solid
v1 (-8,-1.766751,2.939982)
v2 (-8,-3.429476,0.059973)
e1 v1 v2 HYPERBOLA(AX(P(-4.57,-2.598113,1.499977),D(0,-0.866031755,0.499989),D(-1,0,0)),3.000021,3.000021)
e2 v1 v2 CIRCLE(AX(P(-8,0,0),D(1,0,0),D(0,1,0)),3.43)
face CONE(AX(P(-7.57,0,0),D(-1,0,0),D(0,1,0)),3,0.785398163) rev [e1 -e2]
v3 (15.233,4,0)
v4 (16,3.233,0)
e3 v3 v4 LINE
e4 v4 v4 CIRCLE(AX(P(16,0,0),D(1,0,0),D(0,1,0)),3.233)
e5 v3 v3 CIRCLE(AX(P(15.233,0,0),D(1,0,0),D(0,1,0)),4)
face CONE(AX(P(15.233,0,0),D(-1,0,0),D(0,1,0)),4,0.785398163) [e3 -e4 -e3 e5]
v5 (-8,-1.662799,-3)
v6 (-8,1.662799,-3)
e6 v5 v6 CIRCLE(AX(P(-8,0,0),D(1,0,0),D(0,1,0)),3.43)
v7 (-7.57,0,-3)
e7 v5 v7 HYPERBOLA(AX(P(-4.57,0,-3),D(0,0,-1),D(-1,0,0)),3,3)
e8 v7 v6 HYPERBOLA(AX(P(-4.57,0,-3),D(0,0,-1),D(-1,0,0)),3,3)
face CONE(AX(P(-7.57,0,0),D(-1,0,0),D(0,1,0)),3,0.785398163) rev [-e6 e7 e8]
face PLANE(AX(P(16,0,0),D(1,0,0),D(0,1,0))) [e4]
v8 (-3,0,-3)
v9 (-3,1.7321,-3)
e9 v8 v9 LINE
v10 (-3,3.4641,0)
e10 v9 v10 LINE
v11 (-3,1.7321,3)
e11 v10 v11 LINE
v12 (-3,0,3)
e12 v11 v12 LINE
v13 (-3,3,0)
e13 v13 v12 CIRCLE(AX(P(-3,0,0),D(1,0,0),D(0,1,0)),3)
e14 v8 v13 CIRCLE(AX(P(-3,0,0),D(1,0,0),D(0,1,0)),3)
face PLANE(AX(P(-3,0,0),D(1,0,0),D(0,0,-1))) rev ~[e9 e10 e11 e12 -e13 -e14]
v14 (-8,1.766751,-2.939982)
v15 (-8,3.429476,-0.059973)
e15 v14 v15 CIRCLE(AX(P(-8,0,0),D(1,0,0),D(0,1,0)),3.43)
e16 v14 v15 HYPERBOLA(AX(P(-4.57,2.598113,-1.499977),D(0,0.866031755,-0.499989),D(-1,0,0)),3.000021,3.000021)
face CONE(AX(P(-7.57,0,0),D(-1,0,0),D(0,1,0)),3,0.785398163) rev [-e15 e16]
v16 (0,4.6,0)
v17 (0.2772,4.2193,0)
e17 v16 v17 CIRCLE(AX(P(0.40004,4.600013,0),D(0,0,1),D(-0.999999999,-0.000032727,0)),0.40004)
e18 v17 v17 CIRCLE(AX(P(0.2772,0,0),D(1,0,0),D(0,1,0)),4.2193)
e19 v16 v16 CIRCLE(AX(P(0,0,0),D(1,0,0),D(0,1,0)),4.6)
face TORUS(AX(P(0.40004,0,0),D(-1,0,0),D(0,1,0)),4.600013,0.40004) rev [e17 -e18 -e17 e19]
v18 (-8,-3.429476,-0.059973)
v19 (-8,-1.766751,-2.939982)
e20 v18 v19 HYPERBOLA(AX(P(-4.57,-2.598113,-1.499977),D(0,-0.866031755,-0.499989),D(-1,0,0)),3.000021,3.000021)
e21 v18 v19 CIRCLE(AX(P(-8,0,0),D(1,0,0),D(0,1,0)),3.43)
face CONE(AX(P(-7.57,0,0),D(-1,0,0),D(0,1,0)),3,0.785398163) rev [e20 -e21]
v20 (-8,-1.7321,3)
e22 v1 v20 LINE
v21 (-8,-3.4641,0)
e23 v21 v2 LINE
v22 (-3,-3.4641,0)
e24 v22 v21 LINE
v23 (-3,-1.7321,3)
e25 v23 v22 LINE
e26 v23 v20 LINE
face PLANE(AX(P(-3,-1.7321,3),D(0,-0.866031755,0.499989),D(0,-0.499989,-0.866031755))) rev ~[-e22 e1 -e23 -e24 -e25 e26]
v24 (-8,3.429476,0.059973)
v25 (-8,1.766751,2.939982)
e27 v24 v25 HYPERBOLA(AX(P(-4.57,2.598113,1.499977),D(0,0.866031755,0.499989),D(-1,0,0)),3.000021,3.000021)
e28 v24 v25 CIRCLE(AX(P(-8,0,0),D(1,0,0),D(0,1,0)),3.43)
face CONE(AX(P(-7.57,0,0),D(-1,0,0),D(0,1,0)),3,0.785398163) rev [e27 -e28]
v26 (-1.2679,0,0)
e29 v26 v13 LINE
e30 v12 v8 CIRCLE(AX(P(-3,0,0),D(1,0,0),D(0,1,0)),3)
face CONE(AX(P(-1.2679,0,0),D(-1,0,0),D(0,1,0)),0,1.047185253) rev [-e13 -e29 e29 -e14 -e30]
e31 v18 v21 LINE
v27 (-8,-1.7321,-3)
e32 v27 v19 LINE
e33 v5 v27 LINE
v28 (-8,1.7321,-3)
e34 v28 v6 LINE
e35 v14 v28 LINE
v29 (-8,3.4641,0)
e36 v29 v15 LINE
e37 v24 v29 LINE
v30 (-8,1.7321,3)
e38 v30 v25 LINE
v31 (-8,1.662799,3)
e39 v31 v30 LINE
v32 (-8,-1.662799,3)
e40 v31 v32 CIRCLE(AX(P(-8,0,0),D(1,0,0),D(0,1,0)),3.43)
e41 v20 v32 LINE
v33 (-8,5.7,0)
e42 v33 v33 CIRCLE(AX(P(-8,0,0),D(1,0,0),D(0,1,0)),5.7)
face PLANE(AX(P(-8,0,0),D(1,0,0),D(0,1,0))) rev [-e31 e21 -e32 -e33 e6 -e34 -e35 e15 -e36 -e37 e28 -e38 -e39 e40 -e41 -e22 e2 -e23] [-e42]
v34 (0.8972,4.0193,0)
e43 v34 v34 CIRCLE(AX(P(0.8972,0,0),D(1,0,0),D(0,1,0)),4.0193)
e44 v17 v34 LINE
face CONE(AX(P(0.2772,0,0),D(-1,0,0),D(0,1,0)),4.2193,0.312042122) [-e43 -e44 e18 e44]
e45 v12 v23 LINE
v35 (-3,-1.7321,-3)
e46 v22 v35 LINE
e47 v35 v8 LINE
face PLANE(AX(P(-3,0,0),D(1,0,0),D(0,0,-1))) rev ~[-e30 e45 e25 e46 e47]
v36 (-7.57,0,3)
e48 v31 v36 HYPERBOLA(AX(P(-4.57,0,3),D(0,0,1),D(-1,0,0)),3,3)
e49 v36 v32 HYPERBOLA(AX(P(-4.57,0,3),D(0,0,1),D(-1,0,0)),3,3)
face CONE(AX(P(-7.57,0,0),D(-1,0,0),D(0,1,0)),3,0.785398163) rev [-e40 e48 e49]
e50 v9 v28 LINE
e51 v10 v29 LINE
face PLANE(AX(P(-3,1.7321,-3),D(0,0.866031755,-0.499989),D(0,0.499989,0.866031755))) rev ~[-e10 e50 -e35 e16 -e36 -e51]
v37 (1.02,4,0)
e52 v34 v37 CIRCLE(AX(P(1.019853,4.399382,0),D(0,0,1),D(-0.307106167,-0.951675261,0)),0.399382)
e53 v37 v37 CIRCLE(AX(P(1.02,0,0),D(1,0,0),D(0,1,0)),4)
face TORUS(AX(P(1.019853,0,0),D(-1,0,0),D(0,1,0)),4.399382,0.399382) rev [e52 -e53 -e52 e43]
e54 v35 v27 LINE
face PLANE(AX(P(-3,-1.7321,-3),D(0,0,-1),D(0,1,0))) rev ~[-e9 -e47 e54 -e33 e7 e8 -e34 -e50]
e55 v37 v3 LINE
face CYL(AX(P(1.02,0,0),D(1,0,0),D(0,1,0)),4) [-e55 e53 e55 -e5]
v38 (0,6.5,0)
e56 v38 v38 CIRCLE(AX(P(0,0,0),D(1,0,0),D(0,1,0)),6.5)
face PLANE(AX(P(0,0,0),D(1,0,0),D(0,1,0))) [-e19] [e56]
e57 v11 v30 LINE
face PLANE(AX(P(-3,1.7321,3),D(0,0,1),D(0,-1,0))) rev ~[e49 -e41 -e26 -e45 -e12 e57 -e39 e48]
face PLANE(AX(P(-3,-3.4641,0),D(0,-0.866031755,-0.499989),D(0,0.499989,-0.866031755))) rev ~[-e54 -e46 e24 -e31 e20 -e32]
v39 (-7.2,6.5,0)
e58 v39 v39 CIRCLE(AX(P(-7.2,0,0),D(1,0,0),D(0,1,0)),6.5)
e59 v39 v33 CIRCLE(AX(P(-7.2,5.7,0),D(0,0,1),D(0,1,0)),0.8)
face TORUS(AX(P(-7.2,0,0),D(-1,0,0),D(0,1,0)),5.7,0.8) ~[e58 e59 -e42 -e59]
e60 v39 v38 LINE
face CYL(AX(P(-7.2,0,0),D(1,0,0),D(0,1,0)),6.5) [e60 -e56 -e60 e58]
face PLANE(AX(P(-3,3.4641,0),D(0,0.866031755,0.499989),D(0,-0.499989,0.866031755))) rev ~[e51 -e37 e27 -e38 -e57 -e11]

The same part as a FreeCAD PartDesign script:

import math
import FreeCAD as App
import Part
import Sketcher
from FreeCAD import Vector
Q = App.Units.Quantity

doc = App.newDocument("Part")
params = doc.addObject("Spreadsheet::Sheet", "Params")
for row, (alias, value) in enumerate([
    ("sketch1_radius", "0.4 mm"),
    ("sketch1_radius2", "0.8 mm"),
    ("sketch1_width", "7.2 mm"),
    ("sketch1_height", "1.9 mm"),
    ("sketch1_width2", "4.57 mm"),
    ("revolution_angle", "360 deg"),
    ("pocket1_length", "8 mm"),
], start=1):
    params.set(f"A{row}", alias)
    params.set(f"B{row}", "=" + value)
    params.setAlias(f"B{row}", alias)

body = doc.addObject("PartDesign::Body", "Body")

# Sketch on XY plane
sketch1 = body.newObject("Sketcher::SketchObject", "Sketch")
sketch1.AttachmentSupport = (doc.getObject("XY_Plane"), [""])
sketch1.MapMode = "FlatFace"
sketch1.addGeometry([
    Part.LineSegment(Vector(-1.27, 0, 0), Vector(16, 0, 0)),  # 0
    Part.LineSegment(Vector(16, 0, 0), Vector(16, 3.23, 0)),  # 1
    Part.LineSegment(Vector(16, 3.23, 0), Vector(15.23, 4, 0)),  # 2
    Part.LineSegment(Vector(15.23, 4, 0), Vector(1.02, 4, 0)),  # 3
    Part.ArcOfCircle(Part.Circle(Vector(1.02, 4.4, 0), Vector(0, 0, 1), 0.4), math.radians(-107.88), math.radians(-90)),  # 4
    Part.LineSegment(Vector(0.9, 4.02, 0), Vector(0.28, 4.22, 0)),  # 5
    Part.ArcOfCircle(Part.Circle(Vector(0.4, 4.6, 0), Vector(0, 0, 1), 0.4), math.radians(180), math.radians(252)),  # 6
    Part.LineSegment(Vector(0, 4.6, 0), Vector(0, 6.5, 0)),  # 7
    Part.LineSegment(Vector(0, 6.5, 0), Vector(-7.2, 6.5, 0)),  # 8
    Part.ArcOfCircle(Part.Circle(Vector(-7.2, 5.7, 0), Vector(0, 0, 1), 0.8), math.radians(90), math.radians(180)),  # 9
    Part.LineSegment(Vector(-8, 5.7, 0), Vector(-8, 3.43, 0)),  # 10
    Part.LineSegment(Vector(-8, 3.43, 0), Vector(-7.57, 3, 0)),  # 11
    Part.LineSegment(Vector(-7.57, 3, 0), Vector(-3, 3, 0)),  # 12
    Part.LineSegment(Vector(-3, 3, 0), Vector(-1.27, 0, 0)),  # 13
], False)
sketch1.addConstraint([
    Sketcher.Constraint("Coincident", 0, 2, 1, 1),
    Sketcher.Constraint("Coincident", 1, 2, 2, 1),
    Sketcher.Constraint("Coincident", 2, 2, 3, 1),
    Sketcher.Constraint("Tangent", 3, 2, 4, 2),
    Sketcher.Constraint("Tangent", 4, 1, 5, 1),
    Sketcher.Constraint("Tangent", 5, 2, 6, 2),
    Sketcher.Constraint("Tangent", 6, 1, 7, 1),
    Sketcher.Constraint("Coincident", 7, 2, 8, 1),
    Sketcher.Constraint("Tangent", 8, 2, 9, 1),
    Sketcher.Constraint("Tangent", 9, 2, 10, 1),
    Sketcher.Constraint("Coincident", 10, 2, 11, 1),
    Sketcher.Constraint("Coincident", 11, 2, 12, 1),
    Sketcher.Constraint("Coincident", 12, 2, 13, 1),
    Sketcher.Constraint("Coincident", 13, 2, 0, 1),
    Sketcher.Constraint("Horizontal", 0),
    Sketcher.Constraint("Vertical", 1),
    Sketcher.Constraint("Horizontal", 3),
    Sketcher.Constraint("Vertical", 7),
    Sketcher.Constraint("Horizontal", 8),
    Sketcher.Constraint("Vertical", 10),
    Sketcher.Constraint("Horizontal", 12),
    Sketcher.Constraint("Equal", 4, 6),
    Sketcher.Constraint("PointOnObject", 0, 2, -1),
    Sketcher.Constraint("PointOnObject", 6, 1, -2),
    Sketcher.Constraint("Parallel", 2, 11),
    Sketcher.Constraint("Radius", 4, 0.4),
    Sketcher.Constraint("Radius", 9, 0.8),
    Sketcher.Constraint("Angle", 2, Q("135 deg")),
    Sketcher.Constraint("Angle", 13, Q("-59.9993 deg")),
    Sketcher.Constraint("DistanceX", 8, 2, 8, 1, 7.2),
    Sketcher.Constraint("DistanceY", 7, 1, 7, 2, 1.9),
    Sketcher.Constraint("DistanceX", -1, 1, 0, 2, 16.0),
    Sketcher.Constraint("DistanceY", -1, 1, 2, 2, 4.0),
    Sketcher.Constraint("DistanceY", -1, 1, 11, 2, 3.0),
    Sketcher.Constraint("DistanceX", 12, 2, -1, 1, 3.0),
    Sketcher.Constraint("DistanceX", 12, 1, 12, 2, 4.57),
    Sketcher.Constraint("DistanceY", 10, 2, 10, 1, 2.27),
    Sketcher.Constraint("DistanceX", 3, 2, 3, 1, 14.213),
    Sketcher.Constraint("DistanceY", 1, 1, 1, 2, 3.233),
])
sketch1.setExpression("Constraints[25]", "Params.sketch1_radius")
sketch1.setExpression("Constraints[26]", "Params.sketch1_radius2")
sketch1.setExpression("Constraints[29]", "Params.sketch1_width")
sketch1.setExpression("Constraints[30]", "Params.sketch1_height")
sketch1.setExpression("Constraints[35]", "Params.sketch1_width2")
revolution = body.newObject("PartDesign::Revolution", "Revolution")
revolution.Profile = sketch1
revolution.ReferenceAxis = (sketch1, ["H_Axis"])
revolution.setExpression("Angle", "Params.revolution_angle")

# Sketch on YZ plane
sketch2 = body.newObject("Sketcher::SketchObject", "Sketch001")
sketch2.AttachmentSupport = (doc.getObject("YZ_Plane"), [""])
sketch2.MapMode = "FlatFace"
sketch2.AttachmentOffset = App.Placement(Vector(0, 0, -3), App.Rotation())
sketch2.addGeometry([
    Part.LineSegment(Vector(1.7, 3, 0), Vector(-1.7, 3, 0)),  # 0
    Part.LineSegment(Vector(-1.7, 3, 0), Vector(-3.5, 0, 0)),  # 1
    Part.LineSegment(Vector(-3.5, 0, 0), Vector(-1.7, -3, 0)),  # 2
    Part.LineSegment(Vector(-1.7, -3, 0), Vector(1.7, -3, 0)),  # 3
    Part.LineSegment(Vector(1.7, -3, 0), Vector(3.5, 0, 0)),  # 4
    Part.LineSegment(Vector(3.5, 0, 0), Vector(1.7, 3, 0)),  # 5
], False)
sketch2.addConstraint([
    Sketcher.Constraint("Coincident", 0, 2, 1, 1),
    Sketcher.Constraint("Coincident", 1, 2, 2, 1),
    Sketcher.Constraint("Coincident", 2, 2, 3, 1),
    Sketcher.Constraint("Coincident", 3, 2, 4, 1),
    Sketcher.Constraint("Coincident", 4, 2, 5, 1),
    Sketcher.Constraint("Coincident", 5, 2, 0, 1),
    Sketcher.Constraint("Horizontal", 0),
    Sketcher.Constraint("Horizontal", 3),
    Sketcher.Constraint("Symmetric", 0, 2, 3, 2, -1, 1),
    Sketcher.Constraint("Symmetric", 1, 2, 4, 2, -1, 1),
    Sketcher.Constraint("PointOnObject", 1, 2, -1),
    Sketcher.Constraint("Parallel", 2, 5),
    Sketcher.Constraint("Vertical", 0, 2, 2, 2),
    Sketcher.Constraint("Angle", 1, Q("-119.9993 deg")),
    Sketcher.Constraint("DistanceY", -1, 1, 0, 2, 3.0),
    Sketcher.Constraint("DistanceX", 0, 2, 0, 1, 3.4642),
])
pocket1 = body.newObject("PartDesign::Pocket", "Pocket")
pocket1.Profile = sketch2
pocket1.setExpression("Length", "Params.pocket1_length")

doc.recompute()
